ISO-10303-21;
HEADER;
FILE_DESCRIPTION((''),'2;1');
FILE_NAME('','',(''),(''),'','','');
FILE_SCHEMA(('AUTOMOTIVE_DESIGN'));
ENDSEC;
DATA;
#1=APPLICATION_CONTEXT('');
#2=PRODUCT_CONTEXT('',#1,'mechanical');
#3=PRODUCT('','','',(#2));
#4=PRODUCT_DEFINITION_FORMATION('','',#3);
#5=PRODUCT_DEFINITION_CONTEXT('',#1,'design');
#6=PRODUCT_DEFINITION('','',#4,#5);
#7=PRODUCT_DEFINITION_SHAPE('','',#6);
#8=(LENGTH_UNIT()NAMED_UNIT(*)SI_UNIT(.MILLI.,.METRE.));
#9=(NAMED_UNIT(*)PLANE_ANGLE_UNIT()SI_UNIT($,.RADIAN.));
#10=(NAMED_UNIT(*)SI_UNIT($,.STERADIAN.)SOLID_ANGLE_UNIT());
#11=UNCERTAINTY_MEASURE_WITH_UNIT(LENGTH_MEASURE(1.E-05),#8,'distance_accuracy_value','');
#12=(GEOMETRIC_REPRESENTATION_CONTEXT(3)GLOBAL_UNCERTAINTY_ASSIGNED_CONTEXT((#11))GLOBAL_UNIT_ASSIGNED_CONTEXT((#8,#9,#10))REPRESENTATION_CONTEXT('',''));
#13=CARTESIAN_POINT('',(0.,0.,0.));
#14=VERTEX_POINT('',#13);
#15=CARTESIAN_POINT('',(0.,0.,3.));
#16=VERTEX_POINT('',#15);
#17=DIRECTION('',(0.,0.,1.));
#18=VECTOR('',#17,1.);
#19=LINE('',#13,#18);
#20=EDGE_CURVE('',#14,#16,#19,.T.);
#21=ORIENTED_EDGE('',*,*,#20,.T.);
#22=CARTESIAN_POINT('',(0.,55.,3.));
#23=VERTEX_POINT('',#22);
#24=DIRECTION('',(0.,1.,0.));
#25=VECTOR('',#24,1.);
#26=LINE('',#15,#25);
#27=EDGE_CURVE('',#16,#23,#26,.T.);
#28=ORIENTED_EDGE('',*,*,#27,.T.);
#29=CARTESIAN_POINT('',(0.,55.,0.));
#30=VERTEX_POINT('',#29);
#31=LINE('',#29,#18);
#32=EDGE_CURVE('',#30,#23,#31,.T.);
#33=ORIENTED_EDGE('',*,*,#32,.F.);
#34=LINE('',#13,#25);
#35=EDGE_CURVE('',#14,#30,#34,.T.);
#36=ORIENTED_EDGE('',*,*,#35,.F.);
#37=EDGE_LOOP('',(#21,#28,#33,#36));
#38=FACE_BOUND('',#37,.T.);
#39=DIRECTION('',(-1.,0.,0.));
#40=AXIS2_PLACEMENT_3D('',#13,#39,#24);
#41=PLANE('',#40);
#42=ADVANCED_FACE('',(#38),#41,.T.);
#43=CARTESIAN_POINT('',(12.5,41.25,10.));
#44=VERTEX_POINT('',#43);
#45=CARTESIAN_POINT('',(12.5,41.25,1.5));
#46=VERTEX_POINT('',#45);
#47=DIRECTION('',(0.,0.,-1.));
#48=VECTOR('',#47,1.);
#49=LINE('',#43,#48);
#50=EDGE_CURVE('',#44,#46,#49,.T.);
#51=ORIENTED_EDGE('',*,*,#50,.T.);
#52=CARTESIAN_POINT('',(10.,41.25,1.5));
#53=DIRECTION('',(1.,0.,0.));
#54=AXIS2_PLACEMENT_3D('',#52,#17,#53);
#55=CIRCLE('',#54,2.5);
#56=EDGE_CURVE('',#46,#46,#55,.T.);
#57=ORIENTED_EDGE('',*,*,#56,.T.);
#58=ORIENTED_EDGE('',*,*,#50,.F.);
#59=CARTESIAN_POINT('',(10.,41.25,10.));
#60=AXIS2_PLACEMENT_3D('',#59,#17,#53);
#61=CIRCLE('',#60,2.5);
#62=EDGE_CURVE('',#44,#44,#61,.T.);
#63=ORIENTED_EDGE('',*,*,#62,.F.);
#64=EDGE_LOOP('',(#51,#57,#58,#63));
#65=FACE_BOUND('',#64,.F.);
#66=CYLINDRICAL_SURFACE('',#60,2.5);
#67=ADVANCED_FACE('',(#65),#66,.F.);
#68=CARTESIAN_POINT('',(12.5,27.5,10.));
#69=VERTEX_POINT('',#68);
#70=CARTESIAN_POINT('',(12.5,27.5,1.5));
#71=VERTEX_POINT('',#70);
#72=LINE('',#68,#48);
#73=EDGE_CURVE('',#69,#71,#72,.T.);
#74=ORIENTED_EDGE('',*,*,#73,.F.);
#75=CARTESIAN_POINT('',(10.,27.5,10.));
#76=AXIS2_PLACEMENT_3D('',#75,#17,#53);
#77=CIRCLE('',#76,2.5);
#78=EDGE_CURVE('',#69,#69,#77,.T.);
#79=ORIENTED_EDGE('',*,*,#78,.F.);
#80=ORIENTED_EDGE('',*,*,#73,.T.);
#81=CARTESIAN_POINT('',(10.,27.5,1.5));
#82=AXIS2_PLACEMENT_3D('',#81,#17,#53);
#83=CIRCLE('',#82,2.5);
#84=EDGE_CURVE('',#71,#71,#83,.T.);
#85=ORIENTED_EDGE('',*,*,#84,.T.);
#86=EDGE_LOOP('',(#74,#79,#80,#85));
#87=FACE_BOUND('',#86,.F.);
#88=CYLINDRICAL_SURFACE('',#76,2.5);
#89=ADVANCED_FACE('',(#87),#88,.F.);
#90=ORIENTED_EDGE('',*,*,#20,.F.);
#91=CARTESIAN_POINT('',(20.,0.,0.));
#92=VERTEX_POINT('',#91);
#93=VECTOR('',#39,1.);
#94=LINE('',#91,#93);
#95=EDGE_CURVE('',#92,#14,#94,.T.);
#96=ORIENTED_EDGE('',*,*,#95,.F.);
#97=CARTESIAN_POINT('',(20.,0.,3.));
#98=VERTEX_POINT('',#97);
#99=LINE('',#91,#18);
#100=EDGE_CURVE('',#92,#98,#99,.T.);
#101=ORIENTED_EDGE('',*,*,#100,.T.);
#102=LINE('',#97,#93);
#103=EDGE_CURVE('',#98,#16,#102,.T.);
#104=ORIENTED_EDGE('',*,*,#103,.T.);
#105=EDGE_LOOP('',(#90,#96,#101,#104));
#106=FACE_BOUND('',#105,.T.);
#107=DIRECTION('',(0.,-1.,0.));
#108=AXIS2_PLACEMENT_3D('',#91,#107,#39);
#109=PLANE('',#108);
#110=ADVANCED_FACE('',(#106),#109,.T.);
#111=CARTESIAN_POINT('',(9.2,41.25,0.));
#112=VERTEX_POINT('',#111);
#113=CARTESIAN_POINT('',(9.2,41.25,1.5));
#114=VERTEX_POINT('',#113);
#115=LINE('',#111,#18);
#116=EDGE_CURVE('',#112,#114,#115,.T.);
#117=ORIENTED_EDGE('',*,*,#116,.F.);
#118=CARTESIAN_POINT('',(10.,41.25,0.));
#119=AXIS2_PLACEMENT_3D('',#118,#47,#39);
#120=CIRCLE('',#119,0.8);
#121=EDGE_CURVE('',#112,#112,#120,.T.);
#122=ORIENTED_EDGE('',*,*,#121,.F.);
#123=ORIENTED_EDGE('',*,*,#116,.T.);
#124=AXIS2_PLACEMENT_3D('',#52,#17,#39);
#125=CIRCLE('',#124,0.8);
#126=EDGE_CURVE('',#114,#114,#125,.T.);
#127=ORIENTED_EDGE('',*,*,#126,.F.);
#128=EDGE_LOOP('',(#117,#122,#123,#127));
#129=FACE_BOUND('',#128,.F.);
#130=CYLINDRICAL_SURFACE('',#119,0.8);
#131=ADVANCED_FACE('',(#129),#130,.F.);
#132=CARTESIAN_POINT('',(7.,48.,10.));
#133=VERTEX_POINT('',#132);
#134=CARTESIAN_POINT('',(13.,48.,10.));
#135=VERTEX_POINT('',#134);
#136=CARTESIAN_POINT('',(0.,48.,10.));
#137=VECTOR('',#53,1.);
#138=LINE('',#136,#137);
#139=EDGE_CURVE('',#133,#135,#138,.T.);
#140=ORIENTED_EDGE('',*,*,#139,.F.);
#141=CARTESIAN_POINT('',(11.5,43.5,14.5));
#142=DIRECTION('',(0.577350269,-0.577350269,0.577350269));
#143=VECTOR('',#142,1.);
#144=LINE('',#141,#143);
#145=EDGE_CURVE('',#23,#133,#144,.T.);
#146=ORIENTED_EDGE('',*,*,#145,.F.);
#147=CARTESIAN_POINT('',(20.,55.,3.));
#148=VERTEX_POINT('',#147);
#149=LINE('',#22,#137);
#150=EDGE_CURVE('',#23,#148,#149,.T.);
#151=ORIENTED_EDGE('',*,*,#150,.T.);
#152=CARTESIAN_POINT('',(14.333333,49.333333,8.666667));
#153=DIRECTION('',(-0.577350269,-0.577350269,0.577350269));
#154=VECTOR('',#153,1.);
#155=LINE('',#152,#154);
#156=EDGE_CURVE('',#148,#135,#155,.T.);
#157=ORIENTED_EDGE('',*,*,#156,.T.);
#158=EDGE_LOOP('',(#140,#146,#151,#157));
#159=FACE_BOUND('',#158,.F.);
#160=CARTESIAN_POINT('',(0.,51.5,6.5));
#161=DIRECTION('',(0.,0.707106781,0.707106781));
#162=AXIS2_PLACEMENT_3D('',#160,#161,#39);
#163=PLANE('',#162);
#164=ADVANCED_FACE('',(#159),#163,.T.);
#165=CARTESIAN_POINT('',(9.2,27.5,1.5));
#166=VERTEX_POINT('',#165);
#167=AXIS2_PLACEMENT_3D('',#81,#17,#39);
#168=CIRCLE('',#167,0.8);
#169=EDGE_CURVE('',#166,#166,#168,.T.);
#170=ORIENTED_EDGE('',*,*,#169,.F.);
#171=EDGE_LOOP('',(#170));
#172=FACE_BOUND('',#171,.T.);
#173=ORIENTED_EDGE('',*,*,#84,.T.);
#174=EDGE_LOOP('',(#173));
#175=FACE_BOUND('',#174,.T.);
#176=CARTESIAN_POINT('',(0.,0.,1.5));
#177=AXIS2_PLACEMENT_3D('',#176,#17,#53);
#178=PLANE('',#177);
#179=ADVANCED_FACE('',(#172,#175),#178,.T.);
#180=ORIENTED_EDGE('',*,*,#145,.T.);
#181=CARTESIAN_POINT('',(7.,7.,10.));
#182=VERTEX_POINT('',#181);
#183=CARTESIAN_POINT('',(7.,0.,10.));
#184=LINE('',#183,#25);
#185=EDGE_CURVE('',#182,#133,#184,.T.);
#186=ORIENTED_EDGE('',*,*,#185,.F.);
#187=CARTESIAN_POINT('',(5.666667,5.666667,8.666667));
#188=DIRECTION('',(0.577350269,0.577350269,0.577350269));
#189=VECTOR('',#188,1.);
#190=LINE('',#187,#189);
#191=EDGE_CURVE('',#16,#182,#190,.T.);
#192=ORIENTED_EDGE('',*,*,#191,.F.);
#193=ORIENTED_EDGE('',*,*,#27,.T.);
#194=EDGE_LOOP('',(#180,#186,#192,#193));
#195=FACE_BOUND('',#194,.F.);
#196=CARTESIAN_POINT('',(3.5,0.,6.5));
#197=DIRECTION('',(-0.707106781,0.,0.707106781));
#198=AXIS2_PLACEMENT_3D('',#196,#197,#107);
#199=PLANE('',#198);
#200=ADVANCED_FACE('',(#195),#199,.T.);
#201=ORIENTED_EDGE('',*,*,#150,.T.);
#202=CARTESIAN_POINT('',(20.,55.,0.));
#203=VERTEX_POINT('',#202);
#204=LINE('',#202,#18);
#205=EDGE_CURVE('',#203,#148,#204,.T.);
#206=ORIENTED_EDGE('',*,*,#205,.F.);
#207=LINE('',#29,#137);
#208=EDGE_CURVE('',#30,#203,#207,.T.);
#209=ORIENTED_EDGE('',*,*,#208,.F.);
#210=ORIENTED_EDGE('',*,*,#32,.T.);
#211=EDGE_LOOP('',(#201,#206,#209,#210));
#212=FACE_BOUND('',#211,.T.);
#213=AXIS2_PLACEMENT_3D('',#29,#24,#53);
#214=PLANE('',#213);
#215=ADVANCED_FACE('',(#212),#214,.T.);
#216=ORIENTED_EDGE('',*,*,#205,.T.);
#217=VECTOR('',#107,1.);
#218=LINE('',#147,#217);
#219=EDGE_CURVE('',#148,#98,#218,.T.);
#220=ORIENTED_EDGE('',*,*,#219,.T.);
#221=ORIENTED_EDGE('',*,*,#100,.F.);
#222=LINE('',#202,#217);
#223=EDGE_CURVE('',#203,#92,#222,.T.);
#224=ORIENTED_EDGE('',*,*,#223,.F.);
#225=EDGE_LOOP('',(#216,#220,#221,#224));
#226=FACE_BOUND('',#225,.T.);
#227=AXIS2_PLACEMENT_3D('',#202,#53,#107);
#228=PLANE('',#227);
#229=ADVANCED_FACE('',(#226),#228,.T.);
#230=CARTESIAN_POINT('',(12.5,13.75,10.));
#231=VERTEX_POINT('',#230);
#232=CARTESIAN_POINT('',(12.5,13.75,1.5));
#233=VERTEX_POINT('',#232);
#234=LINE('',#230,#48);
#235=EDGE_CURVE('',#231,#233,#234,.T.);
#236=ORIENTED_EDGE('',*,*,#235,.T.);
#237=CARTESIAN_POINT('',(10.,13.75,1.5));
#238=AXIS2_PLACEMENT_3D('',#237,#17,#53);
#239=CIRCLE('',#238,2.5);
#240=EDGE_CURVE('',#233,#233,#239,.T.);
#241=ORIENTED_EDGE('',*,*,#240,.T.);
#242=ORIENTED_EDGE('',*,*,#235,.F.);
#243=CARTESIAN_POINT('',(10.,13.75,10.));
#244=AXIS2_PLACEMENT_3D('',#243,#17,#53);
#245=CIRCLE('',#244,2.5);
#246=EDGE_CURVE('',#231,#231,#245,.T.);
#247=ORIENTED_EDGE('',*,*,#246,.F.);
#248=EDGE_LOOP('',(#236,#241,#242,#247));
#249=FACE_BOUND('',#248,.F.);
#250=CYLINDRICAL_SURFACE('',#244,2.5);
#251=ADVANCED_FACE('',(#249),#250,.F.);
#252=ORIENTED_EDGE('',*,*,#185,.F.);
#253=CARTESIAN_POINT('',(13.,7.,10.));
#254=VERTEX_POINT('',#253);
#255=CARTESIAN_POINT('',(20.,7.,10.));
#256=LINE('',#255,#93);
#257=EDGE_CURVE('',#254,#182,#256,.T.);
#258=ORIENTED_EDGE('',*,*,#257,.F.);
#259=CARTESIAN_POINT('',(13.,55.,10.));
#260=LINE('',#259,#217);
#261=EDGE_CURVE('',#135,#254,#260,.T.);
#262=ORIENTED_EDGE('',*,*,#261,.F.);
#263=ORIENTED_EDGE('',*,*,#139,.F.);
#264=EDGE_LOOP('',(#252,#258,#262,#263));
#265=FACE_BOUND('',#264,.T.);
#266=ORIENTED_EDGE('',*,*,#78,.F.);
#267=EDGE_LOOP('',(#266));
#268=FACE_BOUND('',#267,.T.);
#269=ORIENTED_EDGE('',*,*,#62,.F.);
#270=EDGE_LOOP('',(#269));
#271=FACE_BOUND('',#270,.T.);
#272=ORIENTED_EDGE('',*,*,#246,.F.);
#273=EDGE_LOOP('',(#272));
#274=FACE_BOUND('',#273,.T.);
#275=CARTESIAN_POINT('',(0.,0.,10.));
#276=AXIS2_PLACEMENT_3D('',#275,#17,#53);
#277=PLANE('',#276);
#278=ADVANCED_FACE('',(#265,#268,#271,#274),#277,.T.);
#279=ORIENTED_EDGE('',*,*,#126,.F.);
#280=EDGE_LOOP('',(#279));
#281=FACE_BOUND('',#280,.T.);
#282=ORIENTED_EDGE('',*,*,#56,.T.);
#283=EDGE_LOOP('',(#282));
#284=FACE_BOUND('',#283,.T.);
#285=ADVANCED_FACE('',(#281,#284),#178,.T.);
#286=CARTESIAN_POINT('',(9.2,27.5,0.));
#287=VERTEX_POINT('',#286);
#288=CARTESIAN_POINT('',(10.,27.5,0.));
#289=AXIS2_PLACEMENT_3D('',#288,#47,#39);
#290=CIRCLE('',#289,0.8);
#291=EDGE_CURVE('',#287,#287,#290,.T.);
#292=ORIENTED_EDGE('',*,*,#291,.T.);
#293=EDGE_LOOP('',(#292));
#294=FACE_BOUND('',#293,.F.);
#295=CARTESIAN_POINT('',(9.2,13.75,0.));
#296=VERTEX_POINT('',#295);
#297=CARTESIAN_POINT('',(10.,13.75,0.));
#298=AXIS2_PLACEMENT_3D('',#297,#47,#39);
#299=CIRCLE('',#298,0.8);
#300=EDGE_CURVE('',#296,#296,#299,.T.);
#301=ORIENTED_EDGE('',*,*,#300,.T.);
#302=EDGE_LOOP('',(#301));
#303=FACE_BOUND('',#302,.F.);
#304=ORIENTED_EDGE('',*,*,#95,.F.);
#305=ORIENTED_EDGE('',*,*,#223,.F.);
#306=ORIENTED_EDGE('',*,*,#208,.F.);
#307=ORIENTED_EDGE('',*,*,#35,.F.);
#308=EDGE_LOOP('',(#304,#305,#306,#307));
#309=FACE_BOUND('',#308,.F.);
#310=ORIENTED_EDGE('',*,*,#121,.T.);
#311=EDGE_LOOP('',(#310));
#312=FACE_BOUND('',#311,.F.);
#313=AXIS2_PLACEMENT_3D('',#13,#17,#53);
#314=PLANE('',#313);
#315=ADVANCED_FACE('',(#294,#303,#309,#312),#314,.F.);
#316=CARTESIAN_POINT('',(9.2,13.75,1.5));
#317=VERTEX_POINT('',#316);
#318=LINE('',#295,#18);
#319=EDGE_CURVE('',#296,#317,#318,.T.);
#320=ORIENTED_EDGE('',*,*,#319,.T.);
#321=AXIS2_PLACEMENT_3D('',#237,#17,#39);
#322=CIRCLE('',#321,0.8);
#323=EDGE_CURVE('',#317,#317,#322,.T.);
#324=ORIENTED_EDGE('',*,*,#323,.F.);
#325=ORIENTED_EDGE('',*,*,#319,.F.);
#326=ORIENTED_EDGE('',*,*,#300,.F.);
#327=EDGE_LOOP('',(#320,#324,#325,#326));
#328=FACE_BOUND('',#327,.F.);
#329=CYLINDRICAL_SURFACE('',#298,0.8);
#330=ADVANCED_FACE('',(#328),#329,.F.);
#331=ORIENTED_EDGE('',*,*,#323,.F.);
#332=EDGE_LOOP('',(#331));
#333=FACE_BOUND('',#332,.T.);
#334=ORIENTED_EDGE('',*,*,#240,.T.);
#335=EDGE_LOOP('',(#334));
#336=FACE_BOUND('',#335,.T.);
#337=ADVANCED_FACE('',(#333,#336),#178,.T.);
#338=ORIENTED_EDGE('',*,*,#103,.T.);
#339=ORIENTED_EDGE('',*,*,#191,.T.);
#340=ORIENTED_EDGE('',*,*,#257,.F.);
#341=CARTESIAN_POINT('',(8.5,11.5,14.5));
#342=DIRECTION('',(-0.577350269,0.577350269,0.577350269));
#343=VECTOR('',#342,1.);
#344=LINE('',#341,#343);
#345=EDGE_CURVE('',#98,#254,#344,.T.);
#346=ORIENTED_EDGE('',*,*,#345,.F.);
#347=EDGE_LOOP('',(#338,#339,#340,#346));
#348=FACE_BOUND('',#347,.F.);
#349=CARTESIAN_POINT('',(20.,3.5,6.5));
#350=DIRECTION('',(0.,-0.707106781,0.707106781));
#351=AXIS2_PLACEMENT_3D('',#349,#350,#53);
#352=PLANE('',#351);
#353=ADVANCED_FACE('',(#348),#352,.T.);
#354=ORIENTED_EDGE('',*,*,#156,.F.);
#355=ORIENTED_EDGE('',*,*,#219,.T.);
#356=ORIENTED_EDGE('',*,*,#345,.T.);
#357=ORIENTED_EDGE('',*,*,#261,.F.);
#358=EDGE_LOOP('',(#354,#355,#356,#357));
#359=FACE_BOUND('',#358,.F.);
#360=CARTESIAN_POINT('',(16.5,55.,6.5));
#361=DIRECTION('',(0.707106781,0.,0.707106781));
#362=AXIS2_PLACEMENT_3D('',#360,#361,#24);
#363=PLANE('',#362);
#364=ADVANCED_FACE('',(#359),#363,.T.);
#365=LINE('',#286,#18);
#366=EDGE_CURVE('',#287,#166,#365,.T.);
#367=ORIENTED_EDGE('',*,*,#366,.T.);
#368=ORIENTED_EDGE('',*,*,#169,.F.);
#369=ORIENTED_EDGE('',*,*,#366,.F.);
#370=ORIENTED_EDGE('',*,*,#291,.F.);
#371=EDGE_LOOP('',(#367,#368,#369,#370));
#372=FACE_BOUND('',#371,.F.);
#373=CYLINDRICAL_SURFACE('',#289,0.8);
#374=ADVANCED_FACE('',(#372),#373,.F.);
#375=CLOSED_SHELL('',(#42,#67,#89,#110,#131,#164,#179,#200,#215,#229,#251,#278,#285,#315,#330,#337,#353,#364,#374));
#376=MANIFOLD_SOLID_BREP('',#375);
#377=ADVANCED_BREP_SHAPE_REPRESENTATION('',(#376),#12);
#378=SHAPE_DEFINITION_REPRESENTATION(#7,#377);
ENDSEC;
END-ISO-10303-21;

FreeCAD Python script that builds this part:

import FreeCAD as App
import Part
import Sketcher


def edges_at(feature, points):
    """Names of the edges that pass closest to the given points."""
    edges = feature.Shape.Edges
    near = lambda p: min(range(len(edges)), key=lambda i: edges[i].distToShape(Part.Vertex(*p))[0])
    return sorted({f"Edge{near(p) + 1}" for p in points})


def add_polygon(sketch, points):
    """Adds a closed chain of lines whose ends are joined by coincident constraints."""
    first, n = sketch.GeometryCount, len(points)
    for a, b in zip(points, points[1:] + points[:1]):
        sketch.addGeometry(Part.LineSegment(App.Vector(*a, 0), App.Vector(*b, 0)), False)
    for i in range(n):
        sketch.addConstraint(Sketcher.Constraint("Coincident", first + i, 2, first + (i + 1) % n, 1))

doc = App.newDocument("Part")
body = doc.addObject("PartDesign::Body", "Body")

sketch1 = body.newObject("Sketcher::SketchObject", "Sketch")
sketch1.AttachmentSupport = (doc.getObject("XY_Plane"), [""])
sketch1.MapMode = "FlatFace"
add_polygon(sketch1, [(20, 55), (0, 55), (0, 0), (20, 0)])
sketch1.addConstraint([
    Sketcher.Constraint("Horizontal", 0),
    Sketcher.Constraint("Vertical", 1),
    Sketcher.Constraint("Horizontal", 2),
    Sketcher.Constraint("Vertical", 3),
    Sketcher.Constraint("Coincident", 1, 2, -1, 1),
    Sketcher.Constraint("DistanceX", 0, 2, 0, 1, 20.0),
    Sketcher.Constraint("DistanceY", 1, 2, 1, 1, 55.0),
])
pad1 = body.newObject("PartDesign::Pad", "Pad")
pad1.Profile = sketch1
pad1.Length = 10
doc.recompute()

chamfer = body.newObject("PartDesign::Chamfer", "Chamfer")
chamfer.Base = (pad1, edges_at(pad1, [
    (20, 27.5, 10),
    (0, 27.5, 10),
    (10, 55, 10),
    (10, 0, 10),
]))
chamfer.Size = 7

sketch2 = body.newObject("Sketcher::SketchObject", "Sketch001")
sketch2.AttachmentSupport = (doc.getObject("XY_Plane"), [""])
sketch2.MapMode = "FlatFace"
sketch2.addGeometry([
    Part.Circle(App.Vector(10, 41.2, 0), App.Vector(0, 0, 1), 0.8),
    Part.Circle(App.Vector(10, 13.8, 0), App.Vector(0, 0, 1), 0.8),
    Part.Circle(App.Vector(10, 27.5, 0), App.Vector(0, 0, 1), 0.8),
], False)
sketch2.addConstraint([
    Sketcher.Constraint("Equal", 0, 1),
    Sketcher.Constraint("Equal", 1, 2),
    Sketcher.Constraint("Vertical", 0, 3, 1, 3),
    Sketcher.Constraint("Vertical", 1, 3, 2, 3),
    Sketcher.Constraint("Diameter", 0, 1.6),
    Sketcher.Constraint("DistanceY", -1, 1, 1, 3, 13.75),
    Sketcher.Constraint("DistanceY", 2, 3, 0, 3, 13.75),
    Sketcher.Constraint("DistanceY", 1, 3, 2, 3, 13.75),
    Sketcher.Constraint("DistanceX", -1, 1, 0, 3, 10.0),
])
pocket1 = body.newObject("PartDesign::Pocket", "Pocket")
pocket1.Profile = sketch2
pocket1.Type = "ThroughAll"
pocket1.Reversed = True

sketch3 = body.newObject("Sketcher::SketchObject", "Sketch002")
sketch3.AttachmentSupport = (doc.getObject("XY_Plane"), [""])
sketch3.MapMode = "FlatFace"
sketch3.AttachmentOffset = App.Placement(App.Vector(0, 0, 10), App.Rotation())
sketch3.addGeometry([
    Part.Circle(App.Vector(10, 41.2, 0), App.Vector(0, 0, 1), 2.5),
    Part.Circle(App.Vector(10, 41.2, 0), App.Vector(0, 0, 1), 0.8),
    Part.Circle(App.Vector(10, 27.5, 0), App.Vector(0, 0, 1), 2.5),
    Part.Circle(App.Vector(10, 27.5, 0), App.Vector(0, 0, 1), 0.8),
    Part.Circle(App.Vector(10, 13.8, 0), App.Vector(0, 0, 1), 2.5),
    Part.Circle(App.Vector(10, 13.8, 0), App.Vector(0, 0, 1), 0.8),
], False)
sketch3.addConstraint([
    Sketcher.Constraint("Coincident", 1, 3, 0, 3),
    Sketcher.Constraint("Coincident", 3, 3, 2, 3),
    Sketcher.Constraint("Coincident", 5, 3, 4, 3),
    Sketcher.Constraint("Equal", 0, 2),
    Sketcher.Constraint("Equal", 1, 3),
    Sketcher.Constraint("Equal", 2, 4),
    Sketcher.Constraint("Equal", 3, 5),
    Sketcher.Constraint("Vertical", 1, 3, 2, 3),
    Sketcher.Constraint("Vertical", 3, 3, 4, 3),
    Sketcher.Constraint("Diameter", 0, 5.0),
    Sketcher.Constraint("Diameter", 1, 1.6),
    Sketcher.Constraint("DistanceX", -1, 1, 0, 3, 10.0),
    Sketcher.Constraint("DistanceY", -1, 1, 2, 3, 27.5),
    Sketcher.Constraint("DistanceY", 4, 3, 0, 3, 27.5),
    Sketcher.Constraint("DistanceY", -1, 1, 0, 3, 41.25),
])
pocket2 = body.newObject("PartDesign::Pocket", "Pocket001")
pocket2.Profile = sketch3
pocket2.Length = 8.5

doc.recompute()
